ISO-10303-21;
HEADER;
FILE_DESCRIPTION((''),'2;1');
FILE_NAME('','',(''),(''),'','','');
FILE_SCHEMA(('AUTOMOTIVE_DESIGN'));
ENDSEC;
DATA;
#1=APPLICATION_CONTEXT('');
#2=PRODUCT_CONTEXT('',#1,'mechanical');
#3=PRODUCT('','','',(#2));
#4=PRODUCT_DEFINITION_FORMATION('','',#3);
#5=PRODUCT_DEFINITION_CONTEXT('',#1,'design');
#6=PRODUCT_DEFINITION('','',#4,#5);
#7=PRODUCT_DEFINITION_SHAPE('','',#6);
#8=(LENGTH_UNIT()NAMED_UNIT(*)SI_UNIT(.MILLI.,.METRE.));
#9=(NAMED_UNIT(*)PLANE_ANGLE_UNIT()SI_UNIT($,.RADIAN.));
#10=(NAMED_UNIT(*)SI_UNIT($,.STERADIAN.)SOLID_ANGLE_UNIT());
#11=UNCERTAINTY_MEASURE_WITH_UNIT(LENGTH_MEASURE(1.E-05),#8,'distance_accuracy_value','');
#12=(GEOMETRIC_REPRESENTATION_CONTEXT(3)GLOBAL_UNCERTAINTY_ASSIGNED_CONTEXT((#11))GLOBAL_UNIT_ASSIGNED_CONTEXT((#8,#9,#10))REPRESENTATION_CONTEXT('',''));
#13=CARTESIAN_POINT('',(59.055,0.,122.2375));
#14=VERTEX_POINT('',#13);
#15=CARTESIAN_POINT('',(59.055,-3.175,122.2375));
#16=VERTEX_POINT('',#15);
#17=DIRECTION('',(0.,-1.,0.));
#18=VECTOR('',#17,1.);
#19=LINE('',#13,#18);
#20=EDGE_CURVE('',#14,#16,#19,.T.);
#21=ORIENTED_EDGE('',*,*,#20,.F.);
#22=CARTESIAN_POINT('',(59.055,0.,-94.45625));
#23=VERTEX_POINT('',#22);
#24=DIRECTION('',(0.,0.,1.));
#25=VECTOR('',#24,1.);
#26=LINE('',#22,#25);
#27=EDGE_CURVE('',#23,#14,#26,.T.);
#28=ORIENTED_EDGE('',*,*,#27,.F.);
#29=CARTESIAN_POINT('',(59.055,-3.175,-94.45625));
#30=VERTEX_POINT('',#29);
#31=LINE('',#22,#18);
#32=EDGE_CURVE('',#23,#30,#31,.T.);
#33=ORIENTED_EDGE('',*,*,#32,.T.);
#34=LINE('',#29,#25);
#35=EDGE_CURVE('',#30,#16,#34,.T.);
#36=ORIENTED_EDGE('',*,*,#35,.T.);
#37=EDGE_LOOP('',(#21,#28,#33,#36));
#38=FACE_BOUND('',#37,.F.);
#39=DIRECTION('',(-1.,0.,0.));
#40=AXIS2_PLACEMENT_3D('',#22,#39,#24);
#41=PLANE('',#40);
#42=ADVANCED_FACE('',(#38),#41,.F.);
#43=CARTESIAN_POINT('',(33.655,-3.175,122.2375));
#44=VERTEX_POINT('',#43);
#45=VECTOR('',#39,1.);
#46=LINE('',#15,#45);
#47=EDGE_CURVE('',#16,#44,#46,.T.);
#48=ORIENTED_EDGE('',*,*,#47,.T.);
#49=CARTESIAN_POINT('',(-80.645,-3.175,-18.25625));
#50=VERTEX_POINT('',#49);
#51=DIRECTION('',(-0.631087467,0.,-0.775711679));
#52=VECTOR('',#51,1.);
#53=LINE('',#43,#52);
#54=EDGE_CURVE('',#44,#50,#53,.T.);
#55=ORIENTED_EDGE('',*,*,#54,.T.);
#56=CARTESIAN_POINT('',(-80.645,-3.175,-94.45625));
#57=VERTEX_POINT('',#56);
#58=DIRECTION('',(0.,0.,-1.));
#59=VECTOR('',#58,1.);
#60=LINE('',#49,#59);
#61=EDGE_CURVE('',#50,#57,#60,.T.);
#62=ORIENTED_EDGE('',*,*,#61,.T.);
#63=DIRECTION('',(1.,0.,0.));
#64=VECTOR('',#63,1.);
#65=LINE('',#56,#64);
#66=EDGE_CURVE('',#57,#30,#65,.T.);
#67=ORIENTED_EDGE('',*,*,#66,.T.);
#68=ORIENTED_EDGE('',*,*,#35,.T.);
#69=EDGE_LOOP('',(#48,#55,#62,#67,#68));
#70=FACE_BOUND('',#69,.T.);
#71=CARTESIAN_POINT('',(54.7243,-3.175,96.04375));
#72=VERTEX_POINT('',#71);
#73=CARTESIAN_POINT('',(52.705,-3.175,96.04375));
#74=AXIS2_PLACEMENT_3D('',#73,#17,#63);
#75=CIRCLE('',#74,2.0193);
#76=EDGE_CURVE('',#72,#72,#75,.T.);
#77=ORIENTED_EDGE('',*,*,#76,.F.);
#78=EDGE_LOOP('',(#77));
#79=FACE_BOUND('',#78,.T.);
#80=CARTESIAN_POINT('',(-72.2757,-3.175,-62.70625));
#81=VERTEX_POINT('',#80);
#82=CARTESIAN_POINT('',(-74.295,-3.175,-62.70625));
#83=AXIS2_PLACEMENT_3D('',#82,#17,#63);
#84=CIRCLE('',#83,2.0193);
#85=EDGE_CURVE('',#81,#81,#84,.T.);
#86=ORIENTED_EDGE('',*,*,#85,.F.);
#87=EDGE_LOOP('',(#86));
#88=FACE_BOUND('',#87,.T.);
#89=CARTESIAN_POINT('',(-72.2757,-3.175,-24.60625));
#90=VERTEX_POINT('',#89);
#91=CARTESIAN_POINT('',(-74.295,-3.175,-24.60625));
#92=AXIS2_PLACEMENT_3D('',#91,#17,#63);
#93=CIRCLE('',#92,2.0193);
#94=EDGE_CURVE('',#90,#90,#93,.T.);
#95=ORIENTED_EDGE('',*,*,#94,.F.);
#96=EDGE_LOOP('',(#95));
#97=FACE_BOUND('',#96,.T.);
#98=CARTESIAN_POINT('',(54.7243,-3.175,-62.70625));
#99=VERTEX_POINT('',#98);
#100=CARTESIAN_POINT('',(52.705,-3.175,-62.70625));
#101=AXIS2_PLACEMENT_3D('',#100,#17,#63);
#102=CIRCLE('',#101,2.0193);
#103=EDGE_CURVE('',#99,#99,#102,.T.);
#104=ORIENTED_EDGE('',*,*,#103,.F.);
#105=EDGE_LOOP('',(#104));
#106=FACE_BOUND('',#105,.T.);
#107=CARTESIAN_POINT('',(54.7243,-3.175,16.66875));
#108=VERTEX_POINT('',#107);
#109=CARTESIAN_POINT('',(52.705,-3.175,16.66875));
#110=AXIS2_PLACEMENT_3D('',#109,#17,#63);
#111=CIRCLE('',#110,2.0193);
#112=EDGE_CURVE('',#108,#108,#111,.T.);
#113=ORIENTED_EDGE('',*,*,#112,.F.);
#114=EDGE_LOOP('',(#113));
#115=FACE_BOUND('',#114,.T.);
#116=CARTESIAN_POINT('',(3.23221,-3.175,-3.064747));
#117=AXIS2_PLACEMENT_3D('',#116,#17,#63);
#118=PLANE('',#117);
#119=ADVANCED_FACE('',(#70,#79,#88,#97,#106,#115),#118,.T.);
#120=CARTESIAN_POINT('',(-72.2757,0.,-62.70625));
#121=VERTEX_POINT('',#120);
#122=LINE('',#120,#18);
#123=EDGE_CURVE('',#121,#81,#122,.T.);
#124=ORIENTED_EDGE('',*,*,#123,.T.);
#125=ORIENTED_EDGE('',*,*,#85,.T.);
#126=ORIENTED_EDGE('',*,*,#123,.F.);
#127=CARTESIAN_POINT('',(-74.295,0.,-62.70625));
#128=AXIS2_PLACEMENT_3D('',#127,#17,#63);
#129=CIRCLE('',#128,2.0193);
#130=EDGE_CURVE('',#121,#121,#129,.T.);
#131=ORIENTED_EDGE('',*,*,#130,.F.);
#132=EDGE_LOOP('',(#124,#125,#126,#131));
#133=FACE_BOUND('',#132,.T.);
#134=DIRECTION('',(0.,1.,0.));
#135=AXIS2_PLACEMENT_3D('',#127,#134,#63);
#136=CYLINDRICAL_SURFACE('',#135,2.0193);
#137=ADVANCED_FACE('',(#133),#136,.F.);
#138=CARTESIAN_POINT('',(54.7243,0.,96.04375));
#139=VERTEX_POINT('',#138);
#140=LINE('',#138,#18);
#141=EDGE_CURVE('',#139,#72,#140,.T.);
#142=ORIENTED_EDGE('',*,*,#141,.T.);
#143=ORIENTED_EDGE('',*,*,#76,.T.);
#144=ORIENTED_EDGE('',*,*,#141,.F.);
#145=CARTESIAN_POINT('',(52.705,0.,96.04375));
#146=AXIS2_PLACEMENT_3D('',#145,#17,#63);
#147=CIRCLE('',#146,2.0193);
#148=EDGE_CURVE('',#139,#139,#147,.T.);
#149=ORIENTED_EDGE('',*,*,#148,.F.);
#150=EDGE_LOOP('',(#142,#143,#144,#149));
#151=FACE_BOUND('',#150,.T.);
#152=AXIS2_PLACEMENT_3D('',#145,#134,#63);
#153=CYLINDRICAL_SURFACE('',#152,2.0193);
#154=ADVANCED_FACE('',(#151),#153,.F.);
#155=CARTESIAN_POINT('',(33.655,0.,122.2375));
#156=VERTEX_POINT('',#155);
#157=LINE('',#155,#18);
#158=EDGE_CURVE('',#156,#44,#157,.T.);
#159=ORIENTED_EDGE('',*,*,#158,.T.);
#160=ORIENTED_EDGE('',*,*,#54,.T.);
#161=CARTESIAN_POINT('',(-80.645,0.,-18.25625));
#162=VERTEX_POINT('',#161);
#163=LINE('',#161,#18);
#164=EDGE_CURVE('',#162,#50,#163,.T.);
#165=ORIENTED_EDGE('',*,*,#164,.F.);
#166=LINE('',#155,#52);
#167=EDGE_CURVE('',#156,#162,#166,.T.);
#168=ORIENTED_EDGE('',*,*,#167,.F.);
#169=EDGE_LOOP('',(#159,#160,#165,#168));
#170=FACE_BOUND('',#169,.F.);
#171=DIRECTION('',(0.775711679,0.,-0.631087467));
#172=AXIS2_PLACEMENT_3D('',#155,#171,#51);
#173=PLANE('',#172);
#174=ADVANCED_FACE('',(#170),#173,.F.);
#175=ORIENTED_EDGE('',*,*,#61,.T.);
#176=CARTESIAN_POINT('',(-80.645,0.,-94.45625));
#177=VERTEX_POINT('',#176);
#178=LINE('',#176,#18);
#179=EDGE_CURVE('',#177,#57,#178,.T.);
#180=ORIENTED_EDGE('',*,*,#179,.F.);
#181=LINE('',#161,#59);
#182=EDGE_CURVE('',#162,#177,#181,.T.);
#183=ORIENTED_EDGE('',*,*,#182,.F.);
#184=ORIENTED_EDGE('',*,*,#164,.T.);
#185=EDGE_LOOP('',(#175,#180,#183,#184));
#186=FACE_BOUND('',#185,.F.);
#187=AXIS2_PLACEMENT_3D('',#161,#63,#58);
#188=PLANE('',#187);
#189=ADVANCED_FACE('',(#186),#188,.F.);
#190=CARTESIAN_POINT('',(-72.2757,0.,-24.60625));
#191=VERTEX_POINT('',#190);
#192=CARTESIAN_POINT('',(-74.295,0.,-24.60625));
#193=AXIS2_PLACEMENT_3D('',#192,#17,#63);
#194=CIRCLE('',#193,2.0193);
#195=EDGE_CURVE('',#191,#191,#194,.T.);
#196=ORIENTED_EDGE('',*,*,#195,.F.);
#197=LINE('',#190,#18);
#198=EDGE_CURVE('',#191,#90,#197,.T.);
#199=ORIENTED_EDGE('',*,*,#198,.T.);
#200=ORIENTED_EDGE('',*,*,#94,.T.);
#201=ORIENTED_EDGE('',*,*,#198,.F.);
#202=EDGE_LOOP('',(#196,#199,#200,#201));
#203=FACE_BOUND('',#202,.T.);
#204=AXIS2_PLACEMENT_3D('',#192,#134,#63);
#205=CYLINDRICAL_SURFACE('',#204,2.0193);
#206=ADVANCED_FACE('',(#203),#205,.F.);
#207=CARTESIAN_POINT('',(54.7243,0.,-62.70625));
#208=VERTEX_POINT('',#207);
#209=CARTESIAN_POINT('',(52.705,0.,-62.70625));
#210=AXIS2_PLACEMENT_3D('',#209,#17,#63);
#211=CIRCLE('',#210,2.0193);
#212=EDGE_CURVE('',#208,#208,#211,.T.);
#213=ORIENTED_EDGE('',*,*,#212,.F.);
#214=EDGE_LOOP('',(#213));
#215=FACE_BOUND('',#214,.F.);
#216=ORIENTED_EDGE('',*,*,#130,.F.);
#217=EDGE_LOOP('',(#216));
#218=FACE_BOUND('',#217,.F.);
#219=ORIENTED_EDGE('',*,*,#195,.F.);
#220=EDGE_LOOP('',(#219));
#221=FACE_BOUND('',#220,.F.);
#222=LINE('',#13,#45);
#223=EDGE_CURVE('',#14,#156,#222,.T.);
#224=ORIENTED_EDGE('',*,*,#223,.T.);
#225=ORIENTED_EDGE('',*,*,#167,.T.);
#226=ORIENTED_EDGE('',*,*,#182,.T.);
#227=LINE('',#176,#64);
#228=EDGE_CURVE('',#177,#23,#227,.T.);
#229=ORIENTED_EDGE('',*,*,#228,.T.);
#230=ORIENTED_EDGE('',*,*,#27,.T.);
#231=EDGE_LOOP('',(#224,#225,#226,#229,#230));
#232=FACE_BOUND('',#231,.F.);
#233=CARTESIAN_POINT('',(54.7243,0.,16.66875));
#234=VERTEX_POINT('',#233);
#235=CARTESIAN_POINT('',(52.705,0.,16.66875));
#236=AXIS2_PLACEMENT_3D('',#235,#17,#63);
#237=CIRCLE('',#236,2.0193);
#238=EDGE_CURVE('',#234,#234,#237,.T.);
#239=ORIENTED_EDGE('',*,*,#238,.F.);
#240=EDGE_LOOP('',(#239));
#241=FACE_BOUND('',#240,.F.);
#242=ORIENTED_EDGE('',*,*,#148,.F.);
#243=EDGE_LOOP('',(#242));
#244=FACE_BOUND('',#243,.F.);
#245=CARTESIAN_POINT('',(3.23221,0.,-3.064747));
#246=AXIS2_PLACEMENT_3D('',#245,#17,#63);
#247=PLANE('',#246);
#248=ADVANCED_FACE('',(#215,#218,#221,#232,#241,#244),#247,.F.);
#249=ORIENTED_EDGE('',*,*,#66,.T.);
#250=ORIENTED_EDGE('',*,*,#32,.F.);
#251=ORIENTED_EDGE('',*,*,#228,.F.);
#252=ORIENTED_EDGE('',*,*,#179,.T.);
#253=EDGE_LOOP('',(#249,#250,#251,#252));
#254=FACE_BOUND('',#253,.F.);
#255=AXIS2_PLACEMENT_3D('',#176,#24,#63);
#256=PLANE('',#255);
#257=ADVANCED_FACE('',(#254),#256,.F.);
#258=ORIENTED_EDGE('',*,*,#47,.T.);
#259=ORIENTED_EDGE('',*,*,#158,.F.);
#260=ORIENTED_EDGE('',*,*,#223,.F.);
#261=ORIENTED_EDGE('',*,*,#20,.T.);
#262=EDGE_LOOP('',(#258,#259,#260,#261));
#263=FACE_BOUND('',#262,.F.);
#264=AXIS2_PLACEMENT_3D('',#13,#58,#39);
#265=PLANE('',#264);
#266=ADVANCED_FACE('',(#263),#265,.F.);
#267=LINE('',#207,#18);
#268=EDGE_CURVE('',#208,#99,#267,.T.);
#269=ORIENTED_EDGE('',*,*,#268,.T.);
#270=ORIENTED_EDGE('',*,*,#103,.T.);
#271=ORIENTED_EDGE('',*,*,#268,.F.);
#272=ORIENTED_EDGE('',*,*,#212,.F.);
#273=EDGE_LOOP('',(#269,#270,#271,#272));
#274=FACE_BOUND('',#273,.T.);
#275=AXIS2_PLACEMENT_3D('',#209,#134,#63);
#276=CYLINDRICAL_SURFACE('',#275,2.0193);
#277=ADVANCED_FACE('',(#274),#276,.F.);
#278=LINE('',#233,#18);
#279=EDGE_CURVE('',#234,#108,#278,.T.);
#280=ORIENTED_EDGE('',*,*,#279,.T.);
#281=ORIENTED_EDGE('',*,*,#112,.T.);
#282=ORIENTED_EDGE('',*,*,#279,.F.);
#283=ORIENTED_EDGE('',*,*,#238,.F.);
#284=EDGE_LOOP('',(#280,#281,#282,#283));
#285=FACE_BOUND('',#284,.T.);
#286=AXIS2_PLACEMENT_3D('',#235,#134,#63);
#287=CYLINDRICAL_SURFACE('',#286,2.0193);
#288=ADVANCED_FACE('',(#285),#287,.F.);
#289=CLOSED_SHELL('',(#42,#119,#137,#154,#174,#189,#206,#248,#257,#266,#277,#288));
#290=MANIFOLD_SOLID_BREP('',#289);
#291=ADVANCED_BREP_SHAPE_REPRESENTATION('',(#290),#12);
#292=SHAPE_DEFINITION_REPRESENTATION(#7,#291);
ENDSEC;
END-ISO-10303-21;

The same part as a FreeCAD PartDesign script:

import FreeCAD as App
import Part
import Sketcher
Q = App.Units.Quantity

doc = App.newDocument("Part")
body = doc.addObject("PartDesign::Body", "Body")

sketch1 = body.newObject("Sketcher::SketchObject", "Sketch")
sketch1.AttachmentSupport = (doc.getObject("XZ_Plane"), [""])
sketch1.MapMode = "FlatFace"
sketch1.addGeometry(Part.LineSegment(App.Vector(-80.6, -94.5, 0), App.Vector(59.1, -94.5, 0)), False)
sketch1.addGeometry(Part.LineSegment(App.Vector(59.1, -94.5, 0), App.Vector(59.1, 122.2, 0)), False)
sketch1.addGeometry(Part.LineSegment(App.Vector(59.1, 122.2, 0), App.Vector(33.7, 122.2, 0)), False)
sketch1.addGeometry(Part.LineSegment(App.Vector(33.7, 122.2, 0), App.Vector(-80.6, -18.3, 0)), False)
sketch1.addGeometry(Part.LineSegment(App.Vector(-80.6, -18.3, 0), App.Vector(-80.6, -94.5, 0)), False)
sketch1.addGeometry(Part.Circle(App.Vector(-74.3, -62.7, 0), App.Vector(0, 0, 1), 2), False)
sketch1.addGeometry(Part.Circle(App.Vector(-74.3, -24.6, 0), App.Vector(0, 0, 1), 2), False)
sketch1.addGeometry(Part.Circle(App.Vector(52.7, -62.7, 0), App.Vector(0, 0, 1), 2), False)
sketch1.addGeometry(Part.Circle(App.Vector(52.7, 16.7, 0), App.Vector(0, 0, 1), 2), False)
sketch1.addGeometry(Part.Circle(App.Vector(52.7, 96, 0), App.Vector(0, 0, 1), 2), False)
sketch1.addConstraint(Sketcher.Constraint("Coincident", 0, 2, 1, 1))
sketch1.addConstraint(Sketcher.Constraint("Coincident", 1, 2, 2, 1))
sketch1.addConstraint(Sketcher.Constraint("Coincident", 2, 2, 3, 1))
sketch1.addConstraint(Sketcher.Constraint("Coincident", 3, 2, 4, 1))
sketch1.addConstraint(Sketcher.Constraint("Coincident", 4, 2, 0, 1))
sketch1.addConstraint(Sketcher.Constraint("Horizontal", 0))
sketch1.addConstraint(Sketcher.Constraint("Vertical", 1))
sketch1.addConstraint(Sketcher.Constraint("Horizontal", 2))
sketch1.addConstraint(Sketcher.Constraint("Vertical", 4))
sketch1.addConstraint(Sketcher.Constraint("Equal", 5, 6))
sketch1.addConstraint(Sketcher.Constraint("Equal", 6, 7))
sketch1.addConstraint(Sketcher.Constraint("Equal", 7, 8))
sketch1.addConstraint(Sketcher.Constraint("Equal", 8, 9))
sketch1.addConstraint(Sketcher.Constraint("Horizontal", 5, 3, 7, 3))
sketch1.addConstraint(Sketcher.Constraint("Vertical", 5, 3, 6, 3))
sketch1.addConstraint(Sketcher.Constraint("Vertical", 7, 3, 8, 3))
sketch1.addConstraint(Sketcher.Constraint("Vertical", 8, 3, 9, 3))
sketch1.addConstraint(Sketcher.Constraint("DistanceX", 2, 2, 2, 1, Q("1 in")))
sketch1.addConstraint(Sketcher.Constraint("DistanceY", 4, 2, 4, 1, Q("3 in")))
sketch1.addConstraint(Sketcher.Constraint("Diameter", 5, Q("0.159 in")))
sketch1.addConstraint(Sketcher.Constraint("DistanceX", 0, 1, 0, 2, Q("5.5 in")))
sketch1.addConstraint(Sketcher.Constraint("DistanceX", 5, 3, 7, 3, Q("5 in")))
sketch1.addConstraint(Sketcher.Constraint("DistanceY", 5, 3, 6, 3, Q("1.5 in")))
sketch1.addConstraint(Sketcher.Constraint("DistanceY", 0, 2, 9, 3, Q("7.5 in")))
sketch1.addConstraint(Sketcher.Constraint("DistanceY", 1, 1, 1, 2, Q("8.53125 in")))
sketch1.addConstraint(Sketcher.Constraint("DistanceY", 7, 3, 9, 3, Q("6.25 in")))
sketch1.addConstraint(Sketcher.Constraint("DistanceX", 7, 3, 0, 2, Q("0.25 in")))
sketch1.addConstraint(Sketcher.Constraint("DistanceX", 5, 3, -1, 1, Q("2.925 in")))
sketch1.addConstraint(Sketcher.Constraint("DistanceY", 5, 3, -1, 1, Q("2.46875 in")))
sketch1.addConstraint(Sketcher.Constraint("DistanceY", -1, 1, 8, 3, Q("0.65625 in")))
pad1 = body.newObject("PartDesign::Pad", "Pad")
pad1.Profile = sketch1
pad1.Length = Q("0.125 in")

doc.recompute()
